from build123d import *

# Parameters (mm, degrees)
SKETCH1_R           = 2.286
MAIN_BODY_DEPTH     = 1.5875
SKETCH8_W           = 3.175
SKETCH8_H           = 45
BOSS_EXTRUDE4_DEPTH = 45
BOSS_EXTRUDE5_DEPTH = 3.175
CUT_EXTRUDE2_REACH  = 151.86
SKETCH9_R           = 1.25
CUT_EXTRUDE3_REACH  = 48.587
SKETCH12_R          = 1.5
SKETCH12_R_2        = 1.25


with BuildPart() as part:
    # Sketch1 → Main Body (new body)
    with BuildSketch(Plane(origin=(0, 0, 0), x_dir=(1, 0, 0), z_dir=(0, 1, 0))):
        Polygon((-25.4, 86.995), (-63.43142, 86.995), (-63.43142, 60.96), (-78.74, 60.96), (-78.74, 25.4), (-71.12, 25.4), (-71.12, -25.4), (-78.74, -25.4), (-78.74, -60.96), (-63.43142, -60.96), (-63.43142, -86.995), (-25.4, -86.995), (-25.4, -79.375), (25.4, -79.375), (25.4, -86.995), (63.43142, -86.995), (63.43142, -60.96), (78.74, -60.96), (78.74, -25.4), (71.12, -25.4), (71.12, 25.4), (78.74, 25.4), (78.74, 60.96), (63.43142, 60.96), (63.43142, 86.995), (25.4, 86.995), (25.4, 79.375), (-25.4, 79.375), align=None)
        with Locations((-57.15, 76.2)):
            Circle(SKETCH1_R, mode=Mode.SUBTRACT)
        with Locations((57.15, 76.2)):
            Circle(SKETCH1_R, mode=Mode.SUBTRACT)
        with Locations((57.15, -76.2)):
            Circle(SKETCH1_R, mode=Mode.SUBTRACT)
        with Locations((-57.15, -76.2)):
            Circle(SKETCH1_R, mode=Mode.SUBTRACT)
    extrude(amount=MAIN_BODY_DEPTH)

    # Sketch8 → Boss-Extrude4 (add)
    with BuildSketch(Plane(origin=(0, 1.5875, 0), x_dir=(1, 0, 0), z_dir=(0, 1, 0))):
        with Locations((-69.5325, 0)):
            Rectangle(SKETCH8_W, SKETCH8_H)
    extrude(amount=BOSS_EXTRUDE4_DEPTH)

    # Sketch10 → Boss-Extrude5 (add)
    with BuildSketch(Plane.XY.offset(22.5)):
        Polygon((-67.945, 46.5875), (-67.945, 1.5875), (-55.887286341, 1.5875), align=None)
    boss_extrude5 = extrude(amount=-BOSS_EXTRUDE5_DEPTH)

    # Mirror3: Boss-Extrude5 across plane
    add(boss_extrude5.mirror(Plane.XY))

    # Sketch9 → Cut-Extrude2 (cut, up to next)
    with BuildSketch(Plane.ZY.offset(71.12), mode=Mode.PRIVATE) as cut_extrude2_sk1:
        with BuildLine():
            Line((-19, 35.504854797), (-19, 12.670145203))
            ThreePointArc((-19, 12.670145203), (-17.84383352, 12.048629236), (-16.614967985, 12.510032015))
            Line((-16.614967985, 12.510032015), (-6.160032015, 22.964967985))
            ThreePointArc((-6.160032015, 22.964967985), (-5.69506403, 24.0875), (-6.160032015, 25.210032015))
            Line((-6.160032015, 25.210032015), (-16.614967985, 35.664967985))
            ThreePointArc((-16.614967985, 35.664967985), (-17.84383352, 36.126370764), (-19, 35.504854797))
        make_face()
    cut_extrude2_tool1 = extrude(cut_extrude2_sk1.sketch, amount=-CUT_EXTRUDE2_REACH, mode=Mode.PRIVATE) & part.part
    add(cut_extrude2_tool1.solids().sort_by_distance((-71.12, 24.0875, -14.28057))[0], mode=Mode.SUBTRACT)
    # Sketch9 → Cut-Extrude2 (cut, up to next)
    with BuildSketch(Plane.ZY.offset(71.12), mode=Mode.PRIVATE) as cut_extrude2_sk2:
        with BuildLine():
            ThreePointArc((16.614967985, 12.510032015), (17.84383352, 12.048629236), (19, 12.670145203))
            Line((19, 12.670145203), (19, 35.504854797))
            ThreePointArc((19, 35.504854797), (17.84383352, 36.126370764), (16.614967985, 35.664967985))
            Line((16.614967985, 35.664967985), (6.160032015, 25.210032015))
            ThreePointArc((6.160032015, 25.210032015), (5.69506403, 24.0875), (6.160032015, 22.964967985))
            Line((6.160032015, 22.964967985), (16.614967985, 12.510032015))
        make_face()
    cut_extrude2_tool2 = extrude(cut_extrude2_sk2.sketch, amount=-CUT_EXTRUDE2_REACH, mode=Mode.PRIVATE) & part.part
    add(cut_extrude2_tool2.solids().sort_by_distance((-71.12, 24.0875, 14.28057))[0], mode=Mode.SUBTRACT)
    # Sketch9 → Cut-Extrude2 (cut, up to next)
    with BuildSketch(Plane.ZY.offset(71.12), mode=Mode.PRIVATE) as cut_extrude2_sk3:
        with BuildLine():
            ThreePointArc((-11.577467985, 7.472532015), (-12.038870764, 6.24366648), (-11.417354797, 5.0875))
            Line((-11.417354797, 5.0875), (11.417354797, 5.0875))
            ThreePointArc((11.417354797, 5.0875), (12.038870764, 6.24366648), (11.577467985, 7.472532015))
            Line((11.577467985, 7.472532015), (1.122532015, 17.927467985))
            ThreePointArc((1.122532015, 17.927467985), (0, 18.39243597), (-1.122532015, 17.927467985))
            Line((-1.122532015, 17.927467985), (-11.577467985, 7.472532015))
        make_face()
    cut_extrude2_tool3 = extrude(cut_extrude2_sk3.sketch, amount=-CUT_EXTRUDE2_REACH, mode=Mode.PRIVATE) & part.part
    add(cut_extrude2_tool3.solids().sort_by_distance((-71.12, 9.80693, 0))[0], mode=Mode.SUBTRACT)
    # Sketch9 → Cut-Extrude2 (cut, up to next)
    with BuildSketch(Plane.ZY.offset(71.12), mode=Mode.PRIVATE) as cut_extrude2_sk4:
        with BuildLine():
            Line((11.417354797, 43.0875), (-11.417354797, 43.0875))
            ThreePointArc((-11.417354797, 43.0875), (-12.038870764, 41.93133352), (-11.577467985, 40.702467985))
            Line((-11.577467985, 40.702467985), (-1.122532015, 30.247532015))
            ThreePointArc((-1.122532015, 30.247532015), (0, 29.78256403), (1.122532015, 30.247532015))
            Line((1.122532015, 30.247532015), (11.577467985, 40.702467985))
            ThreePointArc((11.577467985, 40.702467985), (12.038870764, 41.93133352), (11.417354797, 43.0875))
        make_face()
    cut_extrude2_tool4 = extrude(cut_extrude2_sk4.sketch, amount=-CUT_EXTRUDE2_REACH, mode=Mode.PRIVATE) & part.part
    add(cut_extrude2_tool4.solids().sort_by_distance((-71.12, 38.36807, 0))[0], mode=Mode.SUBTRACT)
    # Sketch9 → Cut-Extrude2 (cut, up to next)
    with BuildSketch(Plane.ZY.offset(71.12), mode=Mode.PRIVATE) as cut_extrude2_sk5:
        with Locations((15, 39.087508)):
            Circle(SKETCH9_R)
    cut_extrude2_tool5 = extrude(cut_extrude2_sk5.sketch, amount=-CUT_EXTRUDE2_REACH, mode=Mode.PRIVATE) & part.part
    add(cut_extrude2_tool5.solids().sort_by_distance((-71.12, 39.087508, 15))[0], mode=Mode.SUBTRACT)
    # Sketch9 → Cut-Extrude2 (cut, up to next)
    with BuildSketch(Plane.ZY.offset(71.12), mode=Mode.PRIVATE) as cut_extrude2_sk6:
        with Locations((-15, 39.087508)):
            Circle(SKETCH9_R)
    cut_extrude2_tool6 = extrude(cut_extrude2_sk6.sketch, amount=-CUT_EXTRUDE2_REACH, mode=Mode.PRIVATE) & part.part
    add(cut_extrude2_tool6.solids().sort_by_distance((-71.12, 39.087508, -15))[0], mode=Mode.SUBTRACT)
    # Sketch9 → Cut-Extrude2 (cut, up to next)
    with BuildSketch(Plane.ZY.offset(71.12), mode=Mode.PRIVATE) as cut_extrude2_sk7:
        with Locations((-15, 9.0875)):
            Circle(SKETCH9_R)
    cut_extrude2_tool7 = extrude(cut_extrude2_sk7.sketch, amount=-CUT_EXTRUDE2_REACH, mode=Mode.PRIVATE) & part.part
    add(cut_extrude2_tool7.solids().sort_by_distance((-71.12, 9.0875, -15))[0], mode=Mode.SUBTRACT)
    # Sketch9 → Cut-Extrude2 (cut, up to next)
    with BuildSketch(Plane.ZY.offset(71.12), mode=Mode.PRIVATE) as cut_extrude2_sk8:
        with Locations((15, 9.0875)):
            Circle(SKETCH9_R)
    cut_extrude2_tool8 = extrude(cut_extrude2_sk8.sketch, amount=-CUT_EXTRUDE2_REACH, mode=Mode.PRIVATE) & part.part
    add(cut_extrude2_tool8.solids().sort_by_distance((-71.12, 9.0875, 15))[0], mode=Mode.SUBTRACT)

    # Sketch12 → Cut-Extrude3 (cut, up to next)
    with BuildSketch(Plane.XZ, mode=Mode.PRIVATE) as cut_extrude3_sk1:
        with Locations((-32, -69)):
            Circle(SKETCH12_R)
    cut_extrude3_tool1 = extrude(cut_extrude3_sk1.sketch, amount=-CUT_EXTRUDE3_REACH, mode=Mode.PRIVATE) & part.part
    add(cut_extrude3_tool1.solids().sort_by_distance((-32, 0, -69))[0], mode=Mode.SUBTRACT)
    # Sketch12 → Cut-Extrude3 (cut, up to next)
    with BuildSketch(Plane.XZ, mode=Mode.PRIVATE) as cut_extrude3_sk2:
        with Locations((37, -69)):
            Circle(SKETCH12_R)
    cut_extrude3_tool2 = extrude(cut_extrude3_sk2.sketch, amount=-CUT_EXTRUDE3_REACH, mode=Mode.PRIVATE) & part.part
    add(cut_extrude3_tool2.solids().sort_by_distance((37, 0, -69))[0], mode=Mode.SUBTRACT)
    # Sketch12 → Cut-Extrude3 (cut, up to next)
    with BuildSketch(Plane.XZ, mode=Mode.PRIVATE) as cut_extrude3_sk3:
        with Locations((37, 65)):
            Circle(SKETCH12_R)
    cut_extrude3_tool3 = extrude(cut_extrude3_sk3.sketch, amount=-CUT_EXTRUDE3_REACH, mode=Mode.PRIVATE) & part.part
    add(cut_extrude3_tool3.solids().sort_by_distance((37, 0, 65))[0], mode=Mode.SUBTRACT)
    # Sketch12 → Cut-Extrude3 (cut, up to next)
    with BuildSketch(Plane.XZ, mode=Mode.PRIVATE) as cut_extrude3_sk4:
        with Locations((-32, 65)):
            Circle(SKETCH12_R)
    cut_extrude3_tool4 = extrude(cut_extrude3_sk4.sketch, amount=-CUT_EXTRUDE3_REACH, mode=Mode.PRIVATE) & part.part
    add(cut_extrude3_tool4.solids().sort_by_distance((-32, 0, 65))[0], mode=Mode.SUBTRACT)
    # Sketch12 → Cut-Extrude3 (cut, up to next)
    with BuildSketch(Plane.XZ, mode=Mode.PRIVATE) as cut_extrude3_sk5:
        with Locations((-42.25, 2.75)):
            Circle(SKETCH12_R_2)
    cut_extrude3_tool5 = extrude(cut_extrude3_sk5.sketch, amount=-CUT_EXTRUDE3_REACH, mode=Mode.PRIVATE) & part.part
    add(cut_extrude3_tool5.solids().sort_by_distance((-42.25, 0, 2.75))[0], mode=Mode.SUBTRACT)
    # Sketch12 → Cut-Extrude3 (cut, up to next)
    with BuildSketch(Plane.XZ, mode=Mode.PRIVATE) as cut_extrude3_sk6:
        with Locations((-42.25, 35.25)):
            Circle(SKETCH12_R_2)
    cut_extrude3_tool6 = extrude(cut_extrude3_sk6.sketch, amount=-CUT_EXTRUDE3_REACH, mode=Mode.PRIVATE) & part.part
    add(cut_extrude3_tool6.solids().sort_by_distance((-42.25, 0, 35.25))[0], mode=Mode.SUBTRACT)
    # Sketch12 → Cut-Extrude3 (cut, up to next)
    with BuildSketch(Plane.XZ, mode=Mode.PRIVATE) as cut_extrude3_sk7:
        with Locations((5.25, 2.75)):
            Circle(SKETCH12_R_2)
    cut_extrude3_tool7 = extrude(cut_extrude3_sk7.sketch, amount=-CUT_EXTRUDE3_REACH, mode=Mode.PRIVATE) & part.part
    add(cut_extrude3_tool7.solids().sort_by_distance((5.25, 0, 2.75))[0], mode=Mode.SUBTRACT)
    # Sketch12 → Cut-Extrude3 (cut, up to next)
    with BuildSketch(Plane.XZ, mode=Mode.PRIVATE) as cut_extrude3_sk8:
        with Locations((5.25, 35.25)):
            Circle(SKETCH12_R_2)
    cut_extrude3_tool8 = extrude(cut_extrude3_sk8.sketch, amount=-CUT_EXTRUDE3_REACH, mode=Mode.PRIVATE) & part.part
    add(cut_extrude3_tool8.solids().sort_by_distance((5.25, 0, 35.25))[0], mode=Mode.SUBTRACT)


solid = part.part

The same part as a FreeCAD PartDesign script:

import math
import FreeCAD as App
import Part
import Sketcher
from FreeCAD import Vector
Q = App.Units.Quantity


def add_polygon(sketch, points):
    """Adds a closed chain of lines whose ends are joined by coincident constraints."""
    first, n = sketch.GeometryCount, len(points)
    for a, b in zip(points, points[1:] + points[:1]):
        sketch.addGeometry(Part.LineSegment(App.Vector(*a, 0), App.Vector(*b, 0)), False)
    for i in range(n):
        sketch.addConstraint(Sketcher.Constraint("Coincident", first + i, 2, first + (i + 1) % n, 1))

doc = App.newDocument("Part")
body = doc.addObject("PartDesign::Body", "Body")

sketch1 = body.newObject("Sketcher::SketchObject", "Sketch")
sketch1.AttachmentSupport = (doc.getObject("XZ_Plane"), [""])
sketch1.MapMode = "FlatFace"
add_polygon(sketch1, [(-25.4, -86.995), (-63.43142, -86.995), (-63.43142, -60.96), (-78.74, -60.96), (-78.74, -25.4), (-71.12, -25.4), (-71.12, 25.4), (-78.74, 25.4), (-78.74, 60.96), (-63.43142, 60.96), (-63.43142, 86.995), (-25.4, 86.995), (-25.4, 79.375), (25.4, 79.375), (25.4, 86.995), (63.43142, 86.995), (63.43142, 60.96), (78.74, 60.96), (78.74, 25.4), (71.12, 25.4), (71.12, -25.4), (78.74, -25.4), (78.74, -60.96), (63.43142, -60.96), (63.43142, -86.995), (25.4, -86.995), (25.4, -79.375), (-25.4, -79.375)])
sketch1.addGeometry(Part.Circle(Vector(-57.15, 76.2, 0), Vector(0, 0, 1), 2.286), False)
sketch1.addGeometry(Part.Circle(Vector(57.15, 76.2, 0), Vector(0, 0, 1), 2.286), False)
sketch1.addGeometry(Part.Circle(Vector(-57.15, -76.2, 0), Vector(0, 0, 1), 2.286), False)
sketch1.addGeometry(Part.Circle(Vector(57.15, -76.2, 0), Vector(0, 0, 1), 2.286), False)
sketch1.addConstraint([
    Sketcher.Constraint("Horizontal", 0),
    Sketcher.Constraint("Vertical", 1),
    Sketcher.Constraint("Horizontal", 2),
    Sketcher.Constraint("Vertical", 3),
    Sketcher.Constraint("Horizontal", 4),
    Sketcher.Constraint("Vertical", 5),
    Sketcher.Constraint("Horizontal", 6),
    Sketcher.Constraint("Vertical", 7),
    Sketcher.Constraint("Horizontal", 8),
    Sketcher.Constraint("Vertical", 9),
    Sketcher.Constraint("Horizontal", 10),
    Sketcher.Constraint("Vertical", 11),
    Sketcher.Constraint("Horizontal", 12),
    Sketcher.Constraint("Vertical", 13),
    Sketcher.Constraint("Horizontal", 14),
    Sketcher.Constraint("Vertical", 15),
    Sketcher.Constraint("Horizontal", 16),
    Sketcher.Constraint("Vertical", 17),
    Sketcher.Constraint("Horizontal", 18),
    Sketcher.Constraint("Vertical", 19),
    Sketcher.Constraint("Horizontal", 20),
    Sketcher.Constraint("Vertical", 21),
    Sketcher.Constraint("Horizontal", 22),
    Sketcher.Constraint("Vertical", 23),
    Sketcher.Constraint("Horizontal", 24),
    Sketcher.Constraint("Vertical", 25),
    Sketcher.Constraint("Horizontal", 26),
    Sketcher.Constraint("Vertical", 27),
    Sketcher.Constraint("Equal", 28, 29),
    Sketcher.Constraint("Equal", 29, 30),
    Sketcher.Constraint("Equal", 30, 31),
    Sketcher.Constraint("Symmetric", 29, 3, 30, 3, -1, 1),
    Sketcher.Constraint("Symmetric", 28, 3, 31, 3, -1, 1),
    Sketcher.Constraint("Symmetric", 0, 2, 14, 2, -1, 1),
    Sketcher.Constraint("Symmetric", 2, 2, 16, 2, -1, 1),
    Sketcher.Constraint("Symmetric", 4, 2, 18, 2, -1, 1),
    Sketcher.Constraint("Symmetric", 6, 2, 20, 2, -1, 1),
    Sketcher.Constraint("Symmetric", 8, 2, 22, 2, -1, 1),
    Sketcher.Constraint("Symmetric", 10, 2, 24, 2, -1, 1),
    Sketcher.Constraint("Symmetric", 12, 2, 26, 2, -1, 1),
    Sketcher.Constraint("Symmetric", 28, 3, 29, 3, -2),
    Sketcher.Constraint("Symmetric", 10, 2, 13, 2, -2),
    Sketcher.Constraint("Symmetric", 8, 2, 15, 2, -2),
    Sketcher.Constraint("Symmetric", 6, 2, 17, 2, -2),
    Sketcher.Constraint("Equal", 26, 5),
    Sketcher.Constraint("Equal", 20, 11),
    Sketcher.Constraint("Diameter", 28, Q("0.18 in")),
    Sketcher.Constraint("DistanceX", 12, 1, 12, 2, Q("2 in")),
    Sketcher.Constraint("DistanceX", 4, 1, 4, 2, Q("0.3 in")),
    Sketcher.Constraint("DistanceY", 3, 1, 3, 2, Q("1.4 in")),
    Sketcher.Constraint("DistanceY", -1, 1, 28, 3, Q("3 in")),
    Sketcher.Constraint("DistanceX", 2, 2, -1, 1, Q("3.1 in")),
    Sketcher.Constraint("DistanceX", 28, 3, 29, 3, Q("4.5 in")),
    Sketcher.Constraint("DistanceY", 1, 1, 1, 2, Q("1.025 in")),
    Sketcher.Constraint("DistanceX", 0, 2, 0, 1, Q("1.4973 in")),
])
pad1 = body.newObject("PartDesign::Pad", "Pad")
pad1.Profile = sketch1
pad1.Length = Q("0.0625 in")
pad1.Reversed = True

sketch2 = body.newObject("Sketcher::SketchObject", "Sketch001")
sketch2.AttachmentSupport = (doc.getObject("XZ_Plane"), [""])
sketch2.MapMode = "FlatFace"
sketch2.AttachmentOffset = App.Placement(Vector(0, 0, -0.0625 * 25.4), App.Rotation())
add_polygon(sketch2, [(-71.12, -22.5), (-71.12, 22.5), (-67.945, 22.5), (-67.945, -22.5)])
sketch2.addConstraint([
    Sketcher.Constraint("Vertical", 0),
    Sketcher.Constraint("Horizontal", 1),
    Sketcher.Constraint("Vertical", 2),
    Sketcher.Constraint("Horizontal", 3),
    Sketcher.Constraint("DistanceX", 0, 2, -1, 1, Q("2.8 in")),
    Sketcher.Constraint("DistanceX", 1, 1, 1, 2, Q("0.125 in")),
    Sketcher.Constraint("DistanceY", 0, 1, 0, 2, 45.0),
    Sketcher.Constraint("DistanceY", -1, 1, 0, 2, 22.5),
])
pad2 = body.newObject("PartDesign::Pad", "Pad001")
pad2.Profile = sketch2
pad2.Length = 45
pad2.Reversed = True

sketch3 = body.newObject("Sketcher::SketchObject", "Sketch002")
sketch3.AttachmentSupport = (doc.getObject("XY_Plane"), [""])
sketch3.MapMode = "FlatFace"
sketch3.AttachmentOffset = App.Placement(Vector(0, 0, 22.5), App.Rotation())
add_polygon(sketch3, [(-67.945, 46.5875), (-67.945, 1.5875), (-55.887286, 1.5875)])
sketch3.addConstraint([
    Sketcher.Constraint("Vertical", 0),
    Sketcher.Constraint("Horizontal", 1),
    Sketcher.Constraint("Angle", 2, Q("105 deg")),
    Sketcher.Constraint("DistanceX", 0, 2, -1, 1, Q("2.675 in")),
    Sketcher.Constraint("DistanceY", -1, 1, 0, 2, Q("0.0625 in")),
    Sketcher.Constraint("DistanceY", 0, 2, 0, 1, 45.0),
])
pad3 = body.newObject("PartDesign::Pad", "Pad002")
pad3.Profile = sketch3
pad3.Length = Q("0.125 in")
pad3.Reversed = True
doc.recompute()

mirrored = body.newObject("PartDesign::Mirrored", "Mirrored")
mirrored.Originals = [pad3]
mirrored.MirrorPlane = (doc.getObject("XY_Plane"), [""])
body.Tip = mirrored

sketch4 = body.newObject("Sketcher::SketchObject", "Sketch003")
sketch4.AttachmentSupport = (doc.getObject("YZ_Plane"), [""])
sketch4.MapMode = "FlatFace"
sketch4.AttachmentOffset = App.Placement(Vector(0, 0, -2.8 * 25.4), App.Rotation())
sketch4.addGeometry([
    Part.LineSegment(Vector(35.504855, -19, 0), Vector(12.670145, -19, 0)),
    Part.ArcOfCircle(Part.Circle(Vector(13.632564, -17.7375, 0), Vector(0, 0, 1), 1.5875), math.radians(135), math.radians(232.681294)),
    Part.LineSegment(Vector(12.510032, -16.614968, 0), Vector(22.964968, -6.160032, 0)),
    Part.ArcOfCircle(Part.Circle(Vector(24.0875, -7.282564, 0), Vector(0, 0, 1), 1.5875), math.radians(45), math.radians(135)),
    Part.LineSegment(Vector(25.210032, -6.160032, 0), Vector(35.664968, -16.614968, 0)),
    Part.ArcOfCircle(Part.Circle(Vector(34.542436, -17.7375, 0), Vector(0, 0, 1), 1.5875), math.radians(-52.681294), math.radians(45)),
], False)
sketch4.addConstraint([
    Sketcher.Constraint("Coincident", 0, 2, 1, 2),
    Sketcher.Constraint("Tangent", 1, 1, 2, 1),
    Sketcher.Constraint("Tangent", 2, 2, 3, 2),
    Sketcher.Constraint("Tangent", 3, 1, 4, 1),
    Sketcher.Constraint("Tangent", 4, 2, 5, 2),
    Sketcher.Constraint("Coincident", 5, 1, 0, 1),
    Sketcher.Constraint("Horizontal", 0),
    Sketcher.Constraint("Equal", 1, 3),
    Sketcher.Constraint("Equal", 3, 5),
    Sketcher.Constraint("Perpendicular", 2, 4),
    Sketcher.Constraint("Horizontal", 1, 3, 5, 3),
    Sketcher.Constraint("Horizontal", 2, 2, 3, 1),
    Sketcher.Constraint("Radius", 1, Q("0.0625 in")),
    Sketcher.Constraint("DistanceX", 1, 1, 3, 1, Q("0.5 in")),
    Sketcher.Constraint("DistanceX", 0, 2, 0, 1, 22.83471),
    Sketcher.Constraint("DistanceY", 1, 3, -1, 1, 17.7375),
    Sketcher.Constraint("DistanceX", -1, 1, 3, 3, 24.0875),
])
pocket1 = body.newObject("PartDesign::Pocket", "Pocket")
pocket1.Profile = sketch4
pocket1.Type = "UpToFirst"
pocket1.Reversed = True

sketch5 = body.newObject("Sketcher::SketchObject", "Sketch004")
sketch5.AttachmentSupport = (doc.getObject("YZ_Plane"), [""])
sketch5.MapMode = "FlatFace"
sketch5.AttachmentOffset = App.Placement(Vector(0, 0, -2.8 * 25.4), App.Rotation())
sketch5.addGeometry([
    Part.ArcOfCircle(Part.Circle(Vector(13.632564, 17.7375, 0), Vector(0, 0, 1), 1.5875), math.radians(127.318706), math.radians(225)),
    Part.LineSegment(Vector(12.670145, 19, 0), Vector(35.504855, 19, 0)),
    Part.ArcOfCircle(Part.Circle(Vector(34.542436, 17.7375, 0), Vector(0, 0, 1), 1.5875), math.radians(-45), math.radians(52.681294)),
    Part.LineSegment(Vector(35.664968, 16.614968, 0), Vector(25.210032, 6.160032, 0)),
    Part.ArcOfCircle(Part.Circle(Vector(24.0875, 7.282564, 0), Vector(0, 0, 1), 1.5875), math.radians(-135), math.radians(-45)),
    Part.LineSegment(Vector(22.964968, 6.160032, 0), Vector(12.510032, 16.614968, 0)),
], False)
sketch5.addConstraint([
    Sketcher.Constraint("Coincident", 0, 1, 1, 1),
    Sketcher.Constraint("Coincident", 1, 2, 2, 2),
    Sketcher.Constraint("Tangent", 2, 1, 3, 1),
    Sketcher.Constraint("Tangent", 3, 2, 4, 2),
    Sketcher.Constraint("Tangent", 4, 1, 5, 1),
    Sketcher.Constraint("Tangent", 5, 2, 0, 2),
    Sketcher.Constraint("Horizontal", 1),
    Sketcher.Constraint("Equal", 0, 2),
    Sketcher.Constraint("Equal", 2, 4),
    Sketcher.Constraint("Perpendicular", 3, 5),
    Sketcher.Constraint("Horizontal", 0, 3, 2, 3),
    Sketcher.Constraint("Horizontal", 3, 2, 4, 1),
    Sketcher.Constraint("Radius", 0, Q("0.0625 in")),
    Sketcher.Constraint("DistanceX", 4, 1, 2, 1, Q("0.5 in")),
    Sketcher.Constraint("DistanceX", 1, 1, 1, 2, 22.83471),
    Sketcher.Constraint("DistanceY", -1, 1, 0, 3, 17.7375),
    Sketcher.Constraint("DistanceX", -1, 1, 4, 3, 24.0875),
])
pocket2 = body.newObject("PartDesign::Pocket", "Pocket001")
pocket2.Profile = sketch5
pocket2.Type = "UpToFirst"
pocket2.Reversed = True

sketch6 = body.newObject("Sketcher::SketchObject", "Sketch005")
sketch6.AttachmentSupport = (doc.getObject("YZ_Plane"), [""])
sketch6.MapMode = "FlatFace"
sketch6.AttachmentOffset = App.Placement(Vector(0, 0, -2.8 * 25.4), App.Rotation())
sketch6.addGeometry([
    Part.ArcOfCircle(Part.Circle(Vector(6.35, -10.454936, 0), Vector(0, 0, 1), 1.5875), math.radians(-142.681294), math.radians(-45)),
    Part.LineSegment(Vector(5.0875, -11.417355, 0), Vector(5.0875, 11.417355, 0)),
    Part.ArcOfCircle(Part.Circle(Vector(6.35, 10.454936, 0), Vector(0, 0, 1), 1.5875), math.radians(45), math.radians(142.681294)),
    Part.LineSegment(Vector(7.472532, 11.577468, 0), Vector(17.927468, 1.122532, 0)),
    Part.ArcOfCircle(Part.Circle(Vector(16.804936, 0, 0), Vector(0, 0, 1), 1.5875), math.radians(-45), math.radians(45)),
    Part.LineSegment(Vector(17.927468, -1.122532, 0), Vector(7.472532, -11.577468, 0)),
], False)
sketch6.addConstraint([
    Sketcher.Constraint("Coincident", 0, 1, 1, 1),
    Sketcher.Constraint("Coincident", 1, 2, 2, 2),
    Sketcher.Constraint("Tangent", 2, 1, 3, 1),
    Sketcher.Constraint("Tangent", 3, 2, 4, 2),
    Sketcher.Constraint("Tangent", 4, 1, 5, 1),
    Sketcher.Constraint("Tangent", 5, 2, 0, 2),
    Sketcher.Constraint("Vertical", 1),
    Sketcher.Constraint("Equal", 0, 2),
    Sketcher.Constraint("Equal", 2, 4),
    Sketcher.Constraint("Symmetric", 0, 3, 2, 3, -1),
    Sketcher.Constraint("PointOnObject", 4, 3, -1),
    Sketcher.Constraint("Perpendicular", 3, 5),
    Sketcher.Constraint("Radius", 0, Q("0.0625 in")),
    Sketcher.Constraint("DistanceY", 4, 1, 2, 1, Q("0.5 in")),
    Sketcher.Constraint("DistanceX", -1, 1, 0, 3, Q("0.25 in")),
    Sketcher.Constraint("DistanceY", 1, 1, 1, 2, 22.83471),
])
pocket3 = body.newObject("PartDesign::Pocket", "Pocket002")
pocket3.Profile = sketch6
pocket3.Type = "UpToFirst"
pocket3.Reversed = True

sketch7 = body.newObject("Sketcher::SketchObject", "Sketch006")
sketch7.AttachmentSupport = (doc.getObject("YZ_Plane"), [""])
sketch7.MapMode = "FlatFace"
sketch7.AttachmentOffset = App.Placement(Vector(0, 0, -2.8 * 25.4), App.Rotation())
sketch7.addGeometry([
    Part.LineSegment(Vector(43.0875, 11.417355, 0), Vector(43.0875, -11.417355, 0)),
    Part.ArcOfCircle(Part.Circle(Vector(41.825, -10.454936, 0), Vector(0, 0, 1), 1.5875), math.radians(-135), math.radians(-37.318706)),
    Part.LineSegment(Vector(40.702468, -11.577468, 0), Vector(30.247532, -1.122532, 0)),
    Part.ArcOfCircle(Part.Circle(Vector(31.370064, 0, 0), Vector(0, 0, 1), 1.5875), math.radians(135), math.radians(225)),
    Part.LineSegment(Vector(30.247532, 1.122532, 0), Vector(40.702468, 11.577468, 0)),
    Part.ArcOfCircle(Part.Circle(Vector(41.825, 10.454936, 0), Vector(0, 0, 1), 1.5875), math.radians(37.318706), math.radians(135)),
], False)
sketch7.addConstraint([
    Sketcher.Constraint("Coincident", 0, 2, 1, 2),
    Sketcher.Constraint("Tangent", 1, 1, 2, 1),
    Sketcher.Constraint("Tangent", 2, 2, 3, 2),
    Sketcher.Constraint("Tangent", 3, 1, 4, 1),
    Sketcher.Constraint("Tangent", 4, 2, 5, 2),
    Sketcher.Constraint("Coincident", 5, 1, 0, 1),
    Sketcher.Constraint("Vertical", 0),
    Sketcher.Constraint("Equal", 1, 3),
    Sketcher.Constraint("Equal", 3, 5),
    Sketcher.Constraint("Symmetric", 1, 3, 5, 3, -1),
    Sketcher.Constraint("PointOnObject", 3, 3, -1),
    Sketcher.Constraint("Perpendicular", 2, 4),
    Sketcher.Constraint("Radius", 1, Q("0.0625 in")),
    Sketcher.Constraint("DistanceY", 1, 1, 3, 1, Q("0.5 in")),
    Sketcher.Constraint("DistanceY", 0, 2, 0, 1, 22.83471),
    Sketcher.Constraint("DistanceX", -1, 1, 1, 3, 41.825),
])
pocket4 = body.newObject("PartDesign::Pocket", "Pocket003")
pocket4.Profile = sketch7
pocket4.Type = "UpToFirst"
pocket4.Reversed = True

sketch8 = body.newObject("Sketcher::SketchObject", "Sketch007")
sketch8.AttachmentSupport = (doc.getObject("YZ_Plane"), [""])
sketch8.MapMode = "FlatFace"
sketch8.AttachmentOffset = App.Placement(Vector(0, 0, -2.8 * 25.4), App.Rotation())
sketch8.addGeometry(Part.Circle(Vector(39.087508, 15, 0), Vector(0, 0, 1), 1.25), False)
sketch8.addConstraint([
    Sketcher.Constraint("Diameter", 0, 2.5),
    Sketcher.Constraint("DistanceY", -1, 1, 0, 3, 15.0),
    Sketcher.Constraint("DistanceX", -1, 1, 0, 3, 39.087508),
])
pocket5 = body.newObject("PartDesign::Pocket", "Pocket004")
pocket5.Profile = sketch8
pocket5.Type = "UpToFirst"
pocket5.Reversed = True

sketch9 = body.newObject("Sketcher::SketchObject", "Sketch008")
sketch9.AttachmentSupport = (doc.getObject("YZ_Plane"), [""])
sketch9.MapMode = "FlatFace"
sketch9.AttachmentOffset = App.Placement(Vector(0, 0, -2.8 * 25.4), App.Rotation())
sketch9.addGeometry(Part.Circle(Vector(39.087508, -15, 0), Vector(0, 0, 1), 1.25), False)
sketch9.addConstraint([
    Sketcher.Constraint("Diameter", 0, 2.5),
    Sketcher.Constraint("DistanceY", 0, 3, -1, 1, 15.0),
    Sketcher.Constraint("DistanceX", -1, 1, 0, 3, 39.087508),
])
pocket6 = body.newObject("PartDesign::Pocket", "Pocket005")
pocket6.Profile = sketch9
pocket6.Type = "UpToFirst"
pocket6.Reversed = True

sketch10 = body.newObject("Sketcher::SketchObject", "Sketch009")
sketch10.AttachmentSupport = (doc.getObject("YZ_Plane"), [""])
sketch10.MapMode = "FlatFace"
sketch10.AttachmentOffset = App.Placement(Vector(0, 0, -2.8 * 25.4), App.Rotation())
sketch10.addGeometry(Part.Circle(Vector(9.0875, -15, 0), Vector(0, 0, 1), 1.25), False)
sketch10.addConstraint([
    Sketcher.Constraint("Diameter", 0, 2.5),
    Sketcher.Constraint("DistanceX", -1, 1, 0, 3, 9.0875),
    Sketcher.Constraint("DistanceY", 0, 3, -1, 1, 15.0),
])
pocket7 = body.newObject("PartDesign::Pocket", "Pocket006")
pocket7.Profile = sketch10
pocket7.Type = "UpToFirst"
pocket7.Reversed = True

sketch11 = body.newObject("Sketcher::SketchObject", "Sketch010")
sketch11.AttachmentSupport = (doc.getObject("YZ_Plane"), [""])
sketch11.MapMode = "FlatFace"
sketch11.AttachmentOffset = App.Placement(Vector(0, 0, -2.8 * 25.4), App.Rotation())
sketch11.addGeometry(Part.Circle(Vector(9.0875, 15, 0), Vector(0, 0, 1), 1.25), False)
sketch11.addConstraint([
    Sketcher.Constraint("Diameter", 0, 2.5),
    Sketcher.Constraint("DistanceX", -1, 1, 0, 3, 9.0875),
    Sketcher.Constraint("DistanceY", -1, 1, 0, 3, 15.0),
])
pocket8 = body.newObject("PartDesign::Pocket", "Pocket007")
pocket8.Profile = sketch11
pocket8.Type = "UpToFirst"
pocket8.Reversed = True

sketch12 = body.newObject("Sketcher::SketchObject", "Sketch011")
sketch12.AttachmentSupport = (doc.getObject("XZ_Plane"), [""])
sketch12.MapMode = "FlatFace"
sketch12.addGeometry(Part.Circle(Vector(-32, -69, 0), Vector(0, 0, 1), 1.5), False)
sketch12.addConstraint([
    Sketcher.Constraint("Diameter", 0, 3.0),
    Sketcher.Constraint("DistanceX", 0, 3, -1, 1, 32.0),
    Sketcher.Constraint("DistanceY", 0, 3, -1, 1, 69.0),
])
pocket9 = body.newObject("PartDesign::Pocket", "Pocket008")
pocket9.Profile = sketch12
pocket9.Type = "UpToFirst"

sketch13 = body.newObject("Sketcher::SketchObject", "Sketch012")
sketch13.AttachmentSupport = (doc.getObject("XZ_Plane"), [""])
sketch13.MapMode = "FlatFace"
sketch13.addGeometry(Part.Circle(Vector(37, -69, 0), Vector(0, 0, 1), 1.5), False)
sketch13.addConstraint([
    Sketcher.Constraint("Diameter", 0, 3.0),
    Sketcher.Constraint("DistanceX", -1, 1, 0, 3, 37.0),
    Sketcher.Constraint("DistanceY", 0, 3, -1, 1, 69.0),
])
pocket10 = body.newObject("PartDesign::Pocket", "Pocket009")
pocket10.Profile = sketch13
pocket10.Type = "UpToFirst"

sketch14 = body.newObject("Sketcher::SketchObject", "Sketch013")
sketch14.AttachmentSupport = (doc.getObject("XZ_Plane"), [""])
sketch14.MapMode = "FlatFace"
sketch14.addGeometry(Part.Circle(Vector(37, 65, 0), Vector(0, 0, 1), 1.5), False)
sketch14.addConstraint([
    Sketcher.Constraint("Diameter", 0, 3.0),
    Sketcher.Constraint("DistanceX", -1, 1, 0, 3, 37.0),
    Sketcher.Constraint("DistanceY", -1, 1, 0, 3, 65.0),
])
pocket11 = body.newObject("PartDesign::Pocket", "Pocket010")
pocket11.Profile = sketch14
pocket11.Type = "UpToFirst"

sketch15 = body.newObject("Sketcher::SketchObject", "Sketch014")
sketch15.AttachmentSupport = (doc.getObject("XZ_Plane"), [""])
sketch15.MapMode = "FlatFace"
sketch15.addGeometry(Part.Circle(Vector(-32, 65, 0), Vector(0, 0, 1), 1.5), False)
sketch15.addConstraint([
    Sketcher.Constraint("Diameter", 0, 3.0),
    Sketcher.Constraint("DistanceX", 0, 3, -1, 1, 32.0),
    Sketcher.Constraint("DistanceY", -1, 1, 0, 3, 65.0),
])
pocket12 = body.newObject("PartDesign::Pocket", "Pocket011")
pocket12.Profile = sketch15
pocket12.Type = "UpToFirst"

sketch16 = body.newObject("Sketcher::SketchObject", "Sketch015")
sketch16.AttachmentSupport = (doc.getObject("XZ_Plane"), [""])
sketch16.MapMode = "FlatFace"
sketch16.addGeometry(Part.Circle(Vector(-42.25, 2.75, 0), Vector(0, 0, 1), 1.25), False)
sketch16.addConstraint([
    Sketcher.Constraint("Diameter", 0, 2.5),
    Sketcher.Constraint("DistanceX", 0, 3, -1, 1, 42.25),
    Sketcher.Constraint("DistanceY", -1, 1, 0, 3, 2.75),
])
pocket13 = body.newObject("PartDesign::Pocket", "Pocket012")
pocket13.Profile = sketch16
pocket13.Type = "UpToFirst"

sketch17 = body.newObject("Sketcher::SketchObject", "Sketch016")
sketch17.AttachmentSupport = (doc.getObject("XZ_Plane"), [""])
sketch17.MapMode = "FlatFace"
sketch17.addGeometry(Part.Circle(Vector(-42.25, 35.25, 0), Vector(0, 0, 1), 1.25), False)
sketch17.addConstraint([
    Sketcher.Constraint("Diameter", 0, 2.5),
    Sketcher.Constraint("DistanceX", 0, 3, -1, 1, 42.25),
    Sketcher.Constraint("DistanceY", -1, 1, 0, 3, 35.25),
])
pocket14 = body.newObject("PartDesign::Pocket", "Pocket013")
pocket14.Profile = sketch17
pocket14.Type = "UpToFirst"

sketch18 = body.newObject("Sketcher::SketchObject", "Sketch017")
sketch18.AttachmentSupport = (doc.getObject("XZ_Plane"), [""])
sketch18.MapMode = "FlatFace"
sketch18.addGeometry(Part.Circle(Vector(5.25, 2.75, 0), Vector(0, 0, 1), 1.25), False)
sketch18.addConstraint([
    Sketcher.Constraint("Diameter", 0, 2.5),
    Sketcher.Constraint("DistanceX", -1, 1, 0, 3, 5.25),
    Sketcher.Constraint("DistanceY", -1, 1, 0, 3, 2.75),
])
pocket15 = body.newObject("PartDesign::Pocket", "Pocket014")
pocket15.Profile = sketch18
pocket15.Type = "UpToFirst"

sketch19 = body.newObject("Sketcher::SketchObject", "Sketch018")
sketch19.AttachmentSupport = (doc.getObject("XZ_Plane"), [""])
sketch19.MapMode = "FlatFace"
sketch19.addGeometry(Part.Circle(Vector(5.25, 35.25, 0), Vector(0, 0, 1), 1.25), False)
sketch19.addConstraint([
    Sketcher.Constraint("Diameter", 0, 2.5),
    Sketcher.Constraint("DistanceX", -1, 1, 0, 3, 5.25),
    Sketcher.Constraint("DistanceY", -1, 1, 0, 3, 35.25),
])
pocket16 = body.newObject("PartDesign::Pocket", "Pocket015")
pocket16.Profile = sketch19
pocket16.Type = "UpToFirst"

doc.recompute()
